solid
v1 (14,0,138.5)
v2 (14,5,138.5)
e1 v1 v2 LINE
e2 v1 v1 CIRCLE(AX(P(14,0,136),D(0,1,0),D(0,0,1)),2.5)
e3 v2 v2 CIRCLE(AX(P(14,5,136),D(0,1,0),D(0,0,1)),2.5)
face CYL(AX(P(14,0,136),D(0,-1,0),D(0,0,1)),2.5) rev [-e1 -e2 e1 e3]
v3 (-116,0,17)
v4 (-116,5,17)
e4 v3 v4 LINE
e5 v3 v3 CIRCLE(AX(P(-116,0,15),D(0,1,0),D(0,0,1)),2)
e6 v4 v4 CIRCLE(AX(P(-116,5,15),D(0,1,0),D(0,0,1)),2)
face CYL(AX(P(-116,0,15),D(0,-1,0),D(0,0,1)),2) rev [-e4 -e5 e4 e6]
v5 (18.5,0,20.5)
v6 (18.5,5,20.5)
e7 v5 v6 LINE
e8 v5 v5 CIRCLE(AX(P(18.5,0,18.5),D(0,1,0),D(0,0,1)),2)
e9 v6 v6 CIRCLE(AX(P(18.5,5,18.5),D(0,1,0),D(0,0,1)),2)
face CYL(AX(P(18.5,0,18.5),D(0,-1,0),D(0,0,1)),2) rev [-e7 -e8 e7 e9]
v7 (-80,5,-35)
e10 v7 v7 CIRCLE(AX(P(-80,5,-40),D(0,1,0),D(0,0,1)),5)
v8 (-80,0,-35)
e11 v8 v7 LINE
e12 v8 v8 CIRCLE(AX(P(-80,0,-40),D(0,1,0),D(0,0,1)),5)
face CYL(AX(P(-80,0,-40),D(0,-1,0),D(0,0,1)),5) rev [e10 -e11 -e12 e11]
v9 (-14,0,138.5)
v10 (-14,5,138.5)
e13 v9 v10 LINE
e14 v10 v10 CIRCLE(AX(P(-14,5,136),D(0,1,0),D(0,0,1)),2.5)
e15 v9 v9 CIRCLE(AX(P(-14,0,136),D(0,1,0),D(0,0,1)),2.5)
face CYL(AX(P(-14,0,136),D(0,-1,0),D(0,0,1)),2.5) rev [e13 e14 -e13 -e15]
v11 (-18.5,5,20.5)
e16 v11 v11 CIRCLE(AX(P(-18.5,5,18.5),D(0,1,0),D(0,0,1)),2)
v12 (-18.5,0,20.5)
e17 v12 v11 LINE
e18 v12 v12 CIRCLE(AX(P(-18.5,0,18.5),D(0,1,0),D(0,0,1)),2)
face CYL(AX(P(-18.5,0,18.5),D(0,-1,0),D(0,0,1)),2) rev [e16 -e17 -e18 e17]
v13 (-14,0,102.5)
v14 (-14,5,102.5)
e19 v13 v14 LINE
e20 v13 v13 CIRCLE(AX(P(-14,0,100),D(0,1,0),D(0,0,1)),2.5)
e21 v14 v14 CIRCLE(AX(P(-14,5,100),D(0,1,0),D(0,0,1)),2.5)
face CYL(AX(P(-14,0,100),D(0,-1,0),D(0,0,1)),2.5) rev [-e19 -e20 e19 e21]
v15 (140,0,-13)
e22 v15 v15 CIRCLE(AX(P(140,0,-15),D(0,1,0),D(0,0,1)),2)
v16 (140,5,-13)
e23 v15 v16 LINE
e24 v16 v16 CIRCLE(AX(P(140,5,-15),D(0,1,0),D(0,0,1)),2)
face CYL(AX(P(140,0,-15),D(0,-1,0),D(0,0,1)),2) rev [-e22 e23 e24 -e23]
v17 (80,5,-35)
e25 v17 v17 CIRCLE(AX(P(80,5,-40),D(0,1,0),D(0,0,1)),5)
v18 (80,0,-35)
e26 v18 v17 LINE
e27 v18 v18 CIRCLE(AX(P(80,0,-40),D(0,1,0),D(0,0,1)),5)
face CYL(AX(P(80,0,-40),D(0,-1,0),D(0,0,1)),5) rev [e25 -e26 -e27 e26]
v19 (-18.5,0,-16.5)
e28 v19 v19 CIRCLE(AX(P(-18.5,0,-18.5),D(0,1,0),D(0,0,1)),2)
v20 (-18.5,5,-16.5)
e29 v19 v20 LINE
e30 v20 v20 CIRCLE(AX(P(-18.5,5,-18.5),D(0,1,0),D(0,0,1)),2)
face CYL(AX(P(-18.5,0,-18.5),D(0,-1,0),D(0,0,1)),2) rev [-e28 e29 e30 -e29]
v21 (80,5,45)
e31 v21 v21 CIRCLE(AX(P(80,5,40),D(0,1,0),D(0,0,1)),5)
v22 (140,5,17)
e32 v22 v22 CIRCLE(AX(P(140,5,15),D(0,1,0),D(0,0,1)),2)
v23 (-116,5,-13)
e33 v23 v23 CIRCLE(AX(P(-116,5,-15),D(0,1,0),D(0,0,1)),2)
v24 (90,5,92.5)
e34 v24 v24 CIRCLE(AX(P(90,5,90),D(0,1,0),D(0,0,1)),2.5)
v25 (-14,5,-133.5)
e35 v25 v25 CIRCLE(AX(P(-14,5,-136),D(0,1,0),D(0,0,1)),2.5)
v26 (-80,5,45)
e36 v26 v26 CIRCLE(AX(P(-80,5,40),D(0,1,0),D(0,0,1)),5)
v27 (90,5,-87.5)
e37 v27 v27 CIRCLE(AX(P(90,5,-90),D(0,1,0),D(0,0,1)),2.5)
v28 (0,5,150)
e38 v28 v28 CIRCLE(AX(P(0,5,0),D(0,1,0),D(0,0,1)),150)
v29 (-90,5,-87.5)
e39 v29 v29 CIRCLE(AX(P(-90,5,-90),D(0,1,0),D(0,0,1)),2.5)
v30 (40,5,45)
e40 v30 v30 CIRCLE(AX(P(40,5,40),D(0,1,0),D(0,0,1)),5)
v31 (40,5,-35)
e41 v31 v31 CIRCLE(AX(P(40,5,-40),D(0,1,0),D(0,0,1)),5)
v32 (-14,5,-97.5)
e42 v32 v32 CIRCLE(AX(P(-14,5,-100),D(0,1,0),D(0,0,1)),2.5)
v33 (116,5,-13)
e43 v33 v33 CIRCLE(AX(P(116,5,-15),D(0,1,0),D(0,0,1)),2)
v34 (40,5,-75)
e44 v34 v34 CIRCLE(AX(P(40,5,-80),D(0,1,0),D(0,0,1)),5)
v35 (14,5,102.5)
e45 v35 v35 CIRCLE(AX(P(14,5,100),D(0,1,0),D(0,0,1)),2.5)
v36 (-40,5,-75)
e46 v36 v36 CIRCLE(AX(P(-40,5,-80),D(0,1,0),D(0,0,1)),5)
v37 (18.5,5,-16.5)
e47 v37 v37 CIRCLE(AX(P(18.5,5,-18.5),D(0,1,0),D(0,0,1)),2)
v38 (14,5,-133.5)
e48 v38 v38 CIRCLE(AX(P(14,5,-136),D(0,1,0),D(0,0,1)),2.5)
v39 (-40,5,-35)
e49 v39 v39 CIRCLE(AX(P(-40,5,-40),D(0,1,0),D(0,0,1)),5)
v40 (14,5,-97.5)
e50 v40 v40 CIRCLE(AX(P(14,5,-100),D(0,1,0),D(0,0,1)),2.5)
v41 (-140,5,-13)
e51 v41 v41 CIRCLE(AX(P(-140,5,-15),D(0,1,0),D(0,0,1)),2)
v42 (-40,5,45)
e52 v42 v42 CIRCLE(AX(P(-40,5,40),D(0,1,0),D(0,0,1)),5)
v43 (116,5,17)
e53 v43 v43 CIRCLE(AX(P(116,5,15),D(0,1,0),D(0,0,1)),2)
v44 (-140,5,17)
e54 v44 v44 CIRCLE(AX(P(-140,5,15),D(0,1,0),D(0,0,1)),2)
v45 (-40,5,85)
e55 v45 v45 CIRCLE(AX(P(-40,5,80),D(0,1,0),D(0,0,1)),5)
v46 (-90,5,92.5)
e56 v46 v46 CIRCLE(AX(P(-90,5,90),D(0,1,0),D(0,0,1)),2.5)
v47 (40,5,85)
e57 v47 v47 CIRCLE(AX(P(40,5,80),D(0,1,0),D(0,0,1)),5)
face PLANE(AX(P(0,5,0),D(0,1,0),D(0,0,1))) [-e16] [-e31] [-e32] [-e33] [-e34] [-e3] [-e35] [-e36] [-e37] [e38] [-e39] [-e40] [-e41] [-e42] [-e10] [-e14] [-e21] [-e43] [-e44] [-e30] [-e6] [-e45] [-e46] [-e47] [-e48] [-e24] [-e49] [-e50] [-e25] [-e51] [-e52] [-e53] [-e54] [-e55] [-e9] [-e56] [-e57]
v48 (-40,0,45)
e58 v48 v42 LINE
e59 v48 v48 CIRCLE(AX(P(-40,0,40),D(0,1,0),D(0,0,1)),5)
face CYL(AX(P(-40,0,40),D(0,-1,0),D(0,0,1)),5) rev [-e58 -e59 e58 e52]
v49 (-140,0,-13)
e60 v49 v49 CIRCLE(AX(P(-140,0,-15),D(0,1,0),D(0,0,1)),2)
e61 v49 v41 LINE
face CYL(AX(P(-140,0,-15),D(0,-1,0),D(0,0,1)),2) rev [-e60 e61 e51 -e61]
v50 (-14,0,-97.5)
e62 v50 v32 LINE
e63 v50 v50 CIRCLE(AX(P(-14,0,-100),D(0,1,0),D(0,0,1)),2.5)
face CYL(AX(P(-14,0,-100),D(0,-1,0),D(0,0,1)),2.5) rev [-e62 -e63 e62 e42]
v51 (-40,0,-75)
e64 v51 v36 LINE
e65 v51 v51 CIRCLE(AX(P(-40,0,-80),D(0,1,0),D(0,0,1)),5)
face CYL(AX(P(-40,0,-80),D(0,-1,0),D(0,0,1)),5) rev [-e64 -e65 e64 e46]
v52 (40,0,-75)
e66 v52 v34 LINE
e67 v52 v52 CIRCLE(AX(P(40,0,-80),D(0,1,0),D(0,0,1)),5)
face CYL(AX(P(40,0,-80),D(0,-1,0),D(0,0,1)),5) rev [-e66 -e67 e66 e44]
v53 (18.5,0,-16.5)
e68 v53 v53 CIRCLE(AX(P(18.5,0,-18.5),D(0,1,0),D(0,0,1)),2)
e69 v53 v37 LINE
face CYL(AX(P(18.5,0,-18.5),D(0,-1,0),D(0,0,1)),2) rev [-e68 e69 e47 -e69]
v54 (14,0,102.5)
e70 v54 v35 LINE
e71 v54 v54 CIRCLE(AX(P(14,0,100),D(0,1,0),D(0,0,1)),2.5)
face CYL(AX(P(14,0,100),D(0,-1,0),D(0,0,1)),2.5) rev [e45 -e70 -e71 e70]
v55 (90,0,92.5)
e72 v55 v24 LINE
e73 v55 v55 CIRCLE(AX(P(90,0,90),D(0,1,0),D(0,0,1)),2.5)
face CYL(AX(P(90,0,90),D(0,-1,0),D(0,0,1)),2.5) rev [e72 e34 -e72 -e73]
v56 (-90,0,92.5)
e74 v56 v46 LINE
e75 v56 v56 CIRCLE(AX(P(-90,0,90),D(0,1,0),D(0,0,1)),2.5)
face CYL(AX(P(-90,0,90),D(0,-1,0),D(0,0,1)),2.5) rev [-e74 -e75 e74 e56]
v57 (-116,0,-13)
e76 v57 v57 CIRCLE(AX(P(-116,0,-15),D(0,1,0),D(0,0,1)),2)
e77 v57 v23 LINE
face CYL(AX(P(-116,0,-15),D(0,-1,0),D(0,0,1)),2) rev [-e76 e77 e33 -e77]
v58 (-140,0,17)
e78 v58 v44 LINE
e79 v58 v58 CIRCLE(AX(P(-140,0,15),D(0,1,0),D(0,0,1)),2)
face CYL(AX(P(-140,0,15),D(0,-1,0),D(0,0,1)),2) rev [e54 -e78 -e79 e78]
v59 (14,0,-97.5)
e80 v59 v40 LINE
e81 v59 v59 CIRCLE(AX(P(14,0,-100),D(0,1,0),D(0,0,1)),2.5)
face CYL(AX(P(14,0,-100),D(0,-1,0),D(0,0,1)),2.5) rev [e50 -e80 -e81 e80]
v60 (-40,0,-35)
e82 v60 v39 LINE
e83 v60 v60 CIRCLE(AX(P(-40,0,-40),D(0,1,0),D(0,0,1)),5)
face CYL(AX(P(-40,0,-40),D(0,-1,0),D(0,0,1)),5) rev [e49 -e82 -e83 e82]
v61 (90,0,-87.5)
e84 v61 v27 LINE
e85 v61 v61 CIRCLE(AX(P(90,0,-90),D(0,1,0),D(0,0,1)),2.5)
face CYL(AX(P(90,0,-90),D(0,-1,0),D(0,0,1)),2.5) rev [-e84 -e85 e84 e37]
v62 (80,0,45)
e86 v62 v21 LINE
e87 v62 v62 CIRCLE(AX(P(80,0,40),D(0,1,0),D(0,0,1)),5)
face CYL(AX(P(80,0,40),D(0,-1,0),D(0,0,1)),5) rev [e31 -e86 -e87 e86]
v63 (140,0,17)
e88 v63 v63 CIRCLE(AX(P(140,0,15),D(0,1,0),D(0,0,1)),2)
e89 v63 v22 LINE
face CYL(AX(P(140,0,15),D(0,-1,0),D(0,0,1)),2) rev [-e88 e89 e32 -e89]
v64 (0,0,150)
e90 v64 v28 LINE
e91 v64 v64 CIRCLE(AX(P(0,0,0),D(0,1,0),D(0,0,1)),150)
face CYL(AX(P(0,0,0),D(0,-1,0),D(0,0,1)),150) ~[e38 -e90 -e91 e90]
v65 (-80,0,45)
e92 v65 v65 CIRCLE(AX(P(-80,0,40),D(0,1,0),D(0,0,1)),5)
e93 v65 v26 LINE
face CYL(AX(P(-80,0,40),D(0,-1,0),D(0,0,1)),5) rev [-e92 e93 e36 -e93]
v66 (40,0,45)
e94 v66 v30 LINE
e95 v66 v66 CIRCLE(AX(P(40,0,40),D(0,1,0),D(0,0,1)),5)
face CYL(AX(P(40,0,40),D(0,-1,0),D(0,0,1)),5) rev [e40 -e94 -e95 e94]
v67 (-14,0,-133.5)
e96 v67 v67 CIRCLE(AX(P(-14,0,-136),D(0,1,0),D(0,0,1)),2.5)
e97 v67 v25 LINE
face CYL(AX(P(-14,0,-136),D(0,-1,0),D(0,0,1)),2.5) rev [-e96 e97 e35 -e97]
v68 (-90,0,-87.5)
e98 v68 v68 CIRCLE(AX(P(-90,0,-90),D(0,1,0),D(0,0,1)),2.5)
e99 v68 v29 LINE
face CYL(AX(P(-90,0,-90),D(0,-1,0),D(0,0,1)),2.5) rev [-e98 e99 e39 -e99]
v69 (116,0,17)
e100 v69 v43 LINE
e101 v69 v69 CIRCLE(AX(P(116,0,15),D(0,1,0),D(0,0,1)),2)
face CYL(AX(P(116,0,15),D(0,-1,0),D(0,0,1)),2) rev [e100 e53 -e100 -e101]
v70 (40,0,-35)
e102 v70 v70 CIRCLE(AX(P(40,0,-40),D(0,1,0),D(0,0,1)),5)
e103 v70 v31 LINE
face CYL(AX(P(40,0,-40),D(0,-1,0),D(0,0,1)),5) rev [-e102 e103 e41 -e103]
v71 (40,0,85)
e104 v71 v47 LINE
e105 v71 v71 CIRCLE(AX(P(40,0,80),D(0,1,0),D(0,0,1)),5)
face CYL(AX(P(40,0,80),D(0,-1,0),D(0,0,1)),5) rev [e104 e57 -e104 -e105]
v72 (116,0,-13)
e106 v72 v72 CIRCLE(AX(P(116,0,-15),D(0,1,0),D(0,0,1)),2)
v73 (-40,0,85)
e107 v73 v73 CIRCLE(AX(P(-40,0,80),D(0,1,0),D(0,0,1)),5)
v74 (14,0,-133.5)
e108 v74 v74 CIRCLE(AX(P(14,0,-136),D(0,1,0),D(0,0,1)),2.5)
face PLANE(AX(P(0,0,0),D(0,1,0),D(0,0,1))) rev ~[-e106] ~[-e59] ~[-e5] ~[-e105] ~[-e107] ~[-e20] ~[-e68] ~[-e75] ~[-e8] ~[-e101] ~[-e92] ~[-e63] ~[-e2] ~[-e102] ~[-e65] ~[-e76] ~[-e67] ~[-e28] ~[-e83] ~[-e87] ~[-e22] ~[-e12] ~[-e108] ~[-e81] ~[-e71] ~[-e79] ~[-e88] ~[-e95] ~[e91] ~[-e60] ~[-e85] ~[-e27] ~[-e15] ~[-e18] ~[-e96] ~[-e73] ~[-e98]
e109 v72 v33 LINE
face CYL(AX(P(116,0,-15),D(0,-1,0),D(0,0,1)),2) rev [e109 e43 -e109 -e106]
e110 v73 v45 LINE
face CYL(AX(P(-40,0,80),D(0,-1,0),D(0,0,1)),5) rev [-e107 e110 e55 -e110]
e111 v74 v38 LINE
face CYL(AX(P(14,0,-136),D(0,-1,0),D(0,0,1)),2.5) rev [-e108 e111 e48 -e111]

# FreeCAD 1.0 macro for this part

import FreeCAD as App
import Part
import Sketcher
from FreeCAD import Vector
Q = App.Units.Quantity

doc = App.newDocument("Part")
body = doc.addObject("PartDesign::Body", "Body")

sketch1 = body.newObject("Sketcher::SketchObject", "Sketch")
sketch1.AttachmentSupport = (doc.getObject("XZ_Plane"), [""])
sketch1.MapMode = "FlatFace"
sketch1.addGeometry(Part.Circle(Vector(0, 0, 0), Vector(0, 0, 1), 150), False)
sketch1.addGeometry(Part.Circle(Vector(-90, -90, 0), Vector(0, 0, 1), 2.5), False)
sketch1.addGeometry(Part.Circle(Vector(-140, -15, 0), Vector(0, 0, 1), 2), False)
sketch1.addGeometry(Part.Circle(Vector(-116, -15, 0), Vector(0, 0, 1), 2), False)
sketch1.addGeometry(Part.Circle(Vector(-80, -40, 0), Vector(0, 0, 1), 5), False)
sketch1.addGeometry(Part.Circle(Vector(-40, -80, 0), Vector(0, 0, 1), 5), False)
sketch1.addGeometry(Part.Circle(Vector(-14, -136, 0), Vector(0, 0, 1), 2.5), False)
sketch1.addGeometry(Part.Circle(Vector(-14, -100, 0), Vector(0, 0, 1), 2.5), False)
sketch1.addGeometry(Part.Circle(Vector(-40, -40, 0), Vector(0, 0, 1), 5), False)
sketch1.addGeometry(Part.Circle(Vector(-18.5, -18.5, 0), Vector(0, 0, 1), 2), False)
sketch1.addGeometry(Part.Circle(Vector(-140, 15, 0), Vector(0, 0, 1), 2), False)
sketch1.addGeometry(Part.Circle(Vector(-116, 15, 0), Vector(0, 0, 1), 2), False)
sketch1.addGeometry(Part.Circle(Vector(-80, 40, 0), Vector(0, 0, 1), 5), False)
sketch1.addGeometry(Part.Circle(Vector(-90, 90, 0), Vector(0, 0, 1), 2.5), False)
sketch1.addGeometry(Part.Circle(Vector(-40, 40, 0), Vector(0, 0, 1), 5), False)
sketch1.addGeometry(Part.Circle(Vector(-18.5, 18.5, 0), Vector(0, 0, 1), 2), False)
sketch1.addGeometry(Part.Circle(Vector(-40, 80, 0), Vector(0, 0, 1), 5), False)
sketch1.addGeometry(Part.Circle(Vector(-14, 100, 0), Vector(0, 0, 1), 2.5), False)
sketch1.addGeometry(Part.Circle(Vector(-14, 136, 0), Vector(0, 0, 1), 2.5), False)
sketch1.addGeometry(Part.Circle(Vector(14, -136, 0), Vector(0, 0, 1), 2.5), False)
sketch1.addGeometry(Part.Circle(Vector(14, -100, 0), Vector(0, 0, 1), 2.5), False)
sketch1.addGeometry(Part.Circle(Vector(40, -80, 0), Vector(0, 0, 1), 5), False)
sketch1.addGeometry(Part.Circle(Vector(18.5, -18.5, 0), Vector(0, 0, 1), 2), False)
sketch1.addGeometry(Part.Circle(Vector(40, -40, 0), Vector(0, 0, 1), 5), False)
sketch1.addGeometry(Part.Circle(Vector(90, -90, 0), Vector(0, 0, 1), 2.5), False)
sketch1.addGeometry(Part.Circle(Vector(80, -40, 0), Vector(0, 0, 1), 5), False)
sketch1.addGeometry(Part.Circle(Vector(116, -15, 0), Vector(0, 0, 1), 2), False)
sketch1.addGeometry(Part.Circle(Vector(140, -15, 0), Vector(0, 0, 1), 2), False)
sketch1.addGeometry(Part.Circle(Vector(18.5, 18.5, 0), Vector(0, 0, 1), 2), False)
sketch1.addGeometry(Part.Circle(Vector(40, 40, 0), Vector(0, 0, 1), 5), False)
sketch1.addGeometry(Part.Circle(Vector(14, 100, 0), Vector(0, 0, 1), 2.5), False)
sketch1.addGeometry(Part.Circle(Vector(14, 136, 0), Vector(0, 0, 1), 2.5), False)
sketch1.addGeometry(Part.Circle(Vector(40, 80, 0), Vector(0, 0, 1), 5), False)
sketch1.addGeometry(Part.Circle(Vector(80, 40, 0), Vector(0, 0, 1), 5), False)
sketch1.addGeometry(Part.Circle(Vector(116, 15, 0), Vector(0, 0, 1), 2), False)
sketch1.addGeometry(Part.Circle(Vector(140, 15, 0), Vector(0, 0, 1), 2), False)
sketch1.addGeometry(Part.Circle(Vector(90, 90, 0), Vector(0, 0, 1), 2.5), False)
sketch1.addConstraint(Sketcher.Constraint("Coincident", 0, 3, -1, 1))
sketch1.addConstraint(Sketcher.Constraint("Equal", 2, 3))
sketch1.addConstraint(Sketcher.Constraint("Equal", 4, 5))
sketch1.addConstraint(Sketcher.Constraint("Equal", 1, 6))
sketch1.addConstraint(Sketcher.Constraint("Equal", 6, 7))
sketch1.addConstraint(Sketcher.Constraint("Equal", 5, 8))
sketch1.addConstraint(Sketcher.Constraint("Equal", 3, 9))
sketch1.addConstraint(Sketcher.Constraint("Equal", 9, 10))
sketch1.addConstraint(Sketcher.Constraint("Equal", 10, 11))
sketch1.addConstraint(Sketcher.Constraint("Equal", 8, 12))
sketch1.addConstraint(Sketcher.Constraint("Equal", 7, 13))
sketch1.addConstraint(Sketcher.Constraint("Equal", 12, 14))
sketch1.addConstraint(Sketcher.Constraint("Equal", 11, 15))
sketch1.addConstraint(Sketcher.Constraint("Equal", 14, 16))
sketch1.addConstraint(Sketcher.Constraint("Equal", 13, 17))
sketch1.addConstraint(Sketcher.Constraint("Equal", 17, 18))
sketch1.addConstraint(Sketcher.Constraint("Equal", 18, 19))
sketch1.addConstraint(Sketcher.Constraint("Equal", 19, 20))
sketch1.addConstraint(Sketcher.Constraint("Equal", 16, 21))
sketch1.addConstraint(Sketcher.Constraint("Equal", 15, 22))
sketch1.addConstraint(Sketcher.Constraint("Equal", 21, 23))
sketch1.addConstraint(Sketcher.Constraint("Equal", 20, 24))
sketch1.addConstraint(Sketcher.Constraint("Equal", 23, 25))
sketch1.addConstraint(Sketcher.Constraint("Equal", 22, 26))
sketch1.addConstraint(Sketcher.Constraint("Equal", 26, 27))
sketch1.addConstraint(Sketcher.Constraint("Equal", 27, 28))
sketch1.addConstraint(Sketcher.Constraint("Equal", 25, 29))
sketch1.addConstraint(Sketcher.Constraint("Equal", 24, 30))
sketch1.addConstraint(Sketcher.Constraint("Equal", 30, 31))
sketch1.addConstraint(Sketcher.Constraint("Equal", 29, 32))
sketch1.addConstraint(Sketcher.Constraint("Equal", 32, 33))
sketch1.addConstraint(Sketcher.Constraint("Equal", 28, 34))
sketch1.addConstraint(Sketcher.Constraint("Equal", 34, 35))
sketch1.addConstraint(Sketcher.Constraint("Equal", 31, 36))
sketch1.addConstraint(Sketcher.Constraint("Symmetric", 18, 3, 19, 3, -1, 1))
sketch1.addConstraint(Sketcher.Constraint("Symmetric", 17, 3, 20, 3, -1, 1))
sketch1.addConstraint(Sketcher.Constraint("Symmetric", 16, 3, 21, 3, -1, 1))
sketch1.addConstraint(Sketcher.Constraint("Symmetric", 15, 3, 22, 3, -1, 1))
sketch1.addConstraint(Sketcher.Constraint("Symmetric", 14, 3, 23, 3, -1, 1))
sketch1.addConstraint(Sketcher.Constraint("Symmetric", 13, 3, 24, 3, -1, 1))
sketch1.addConstraint(Sketcher.Constraint("Symmetric", 12, 3, 25, 3, -1, 1))
sketch1.addConstraint(Sketcher.Constraint("Symmetric", 11, 3, 26, 3, -1, 1))
sketch1.addConstraint(Sketcher.Constraint("Symmetric", 10, 3, 27, 3, -1, 1))
sketch1.addConstraint(Sketcher.Constraint("Symmetric", 9, 3, 28, 3, -1, 1))
sketch1.addConstraint(Sketcher.Constraint("Symmetric", 8, 3, 29, 3, -1, 1))
sketch1.addConstraint(Sketcher.Constraint("Symmetric", 7, 3, 30, 3, -1, 1))
sketch1.addConstraint(Sketcher.Constraint("Symmetric", 6, 3, 31, 3, -1, 1))
sketch1.addConstraint(Sketcher.Constraint("Symmetric", 5, 3, 32, 3, -1, 1))
sketch1.addConstraint(Sketcher.Constraint("Symmetric", 4, 3, 33, 3, -1, 1))
sketch1.addConstraint(Sketcher.Constraint("Symmetric", 3, 3, 34, 3, -1, 1))
sketch1.addConstraint(Sketcher.Constraint("Symmetric", 2, 3, 35, 3, -1, 1))
sketch1.addConstraint(Sketcher.Constraint("Symmetric", 1, 3, 36, 3, -1, 1))
sketch1.addConstraint(Sketcher.Constraint("Symmetric", 6, 3, 19, 3, -2))
sketch1.addConstraint(Sketcher.Constraint("Symmetric", 7, 3, 20, 3, -2))
sketch1.addConstraint(Sketcher.Constraint("Symmetric", 5, 3, 21, 3, -2))
sketch1.addConstraint(Sketcher.Constraint("Symmetric", 9, 3, 22, 3, -2))
sketch1.addConstraint(Sketcher.Constraint("Symmetric", 8, 3, 23, 3, -2))
sketch1.addConstraint(Sketcher.Constraint("Symmetric", 1, 3, 24, 3, -2))
sketch1.addConstraint(Sketcher.Constraint("Symmetric", 4, 3, 25, 3, -2))
sketch1.addConstraint(Sketcher.Constraint("Symmetric", 3, 3, 26, 3, -2))
sketch1.addConstraint(Sketcher.Constraint("Symmetric", 2, 3, 27, 3, -2))
sketch1.addConstraint(Sketcher.Constraint("Horizontal", 2, 3, 3, 3))
sketch1.addConstraint(Sketcher.Constraint("Horizontal", 4, 3, 8, 3))
sketch1.addConstraint(Sketcher.Constraint("Vertical", 6, 3, 7, 3))
sketch1.addConstraint(Sketcher.Constraint("Vertical", 5, 3, 8, 3))
sketch1.addConstraint(Sketcher.Constraint("Diameter", 0, Q("300 mm")))
sketch1.addConstraint(Sketcher.Constraint("Diameter", 1, Q("5 mm")))
sketch1.addConstraint(Sketcher.Constraint("Diameter", 2, Q("4 mm")))
sketch1.addConstraint(Sketcher.Constraint("Diameter", 4, Q("10 mm")))
sketch1.addConstraint(Sketcher.Constraint("DistanceX", 1, 3, -1, 1, Q("90 mm")))
sketch1.addConstraint(Sketcher.Constraint("DistanceY", 1, 3, -1, 1, Q("90 mm")))
sketch1.addConstraint(Sketcher.Constraint("DistanceX", 2, 3, -1, 1, Q("140 mm")))
sketch1.addConstraint(Sketcher.Constraint("DistanceY", 2, 3, -1, 1, Q("15 mm")))
sketch1.addConstraint(Sketcher.Constraint("DistanceX", 3, 3, -1, 1, Q("116 mm")))
sketch1.addConstraint(Sketcher.Constraint("DistanceX", 4, 3, -1, 1, Q("80 mm")))
sketch1.addConstraint(Sketcher.Constraint("DistanceY", 4, 3, -1, 1, Q("40 mm")))
sketch1.addConstraint(Sketcher.Constraint("DistanceX", 5, 3, -1, 1, Q("40 mm")))
sketch1.addConstraint(Sketcher.Constraint("DistanceY", 5, 3, -1, 1, Q("80 mm")))
sketch1.addConstraint(Sketcher.Constraint("DistanceX", 6, 3, -1, 1, Q("14 mm")))
sketch1.addConstraint(Sketcher.Constraint("DistanceY", 6, 3, -1, 1, Q("136 mm")))
sketch1.addConstraint(Sketcher.Constraint("DistanceY", 7, 3, -1, 1, Q("100 mm")))
sketch1.addConstraint(Sketcher.Constraint("DistanceY", 9, 3, 15, 3, Q("37 mm")))
sketch1.addConstraint(Sketcher.Constraint("DistanceX", 9, 3, 22, 3, Q("37 mm")))
pad1 = body.newObject("PartDesign::Pad", "Pad")
pad1.Profile = sketch1
pad1.Length = 5
pad1.Reversed = True

doc.recompute()
